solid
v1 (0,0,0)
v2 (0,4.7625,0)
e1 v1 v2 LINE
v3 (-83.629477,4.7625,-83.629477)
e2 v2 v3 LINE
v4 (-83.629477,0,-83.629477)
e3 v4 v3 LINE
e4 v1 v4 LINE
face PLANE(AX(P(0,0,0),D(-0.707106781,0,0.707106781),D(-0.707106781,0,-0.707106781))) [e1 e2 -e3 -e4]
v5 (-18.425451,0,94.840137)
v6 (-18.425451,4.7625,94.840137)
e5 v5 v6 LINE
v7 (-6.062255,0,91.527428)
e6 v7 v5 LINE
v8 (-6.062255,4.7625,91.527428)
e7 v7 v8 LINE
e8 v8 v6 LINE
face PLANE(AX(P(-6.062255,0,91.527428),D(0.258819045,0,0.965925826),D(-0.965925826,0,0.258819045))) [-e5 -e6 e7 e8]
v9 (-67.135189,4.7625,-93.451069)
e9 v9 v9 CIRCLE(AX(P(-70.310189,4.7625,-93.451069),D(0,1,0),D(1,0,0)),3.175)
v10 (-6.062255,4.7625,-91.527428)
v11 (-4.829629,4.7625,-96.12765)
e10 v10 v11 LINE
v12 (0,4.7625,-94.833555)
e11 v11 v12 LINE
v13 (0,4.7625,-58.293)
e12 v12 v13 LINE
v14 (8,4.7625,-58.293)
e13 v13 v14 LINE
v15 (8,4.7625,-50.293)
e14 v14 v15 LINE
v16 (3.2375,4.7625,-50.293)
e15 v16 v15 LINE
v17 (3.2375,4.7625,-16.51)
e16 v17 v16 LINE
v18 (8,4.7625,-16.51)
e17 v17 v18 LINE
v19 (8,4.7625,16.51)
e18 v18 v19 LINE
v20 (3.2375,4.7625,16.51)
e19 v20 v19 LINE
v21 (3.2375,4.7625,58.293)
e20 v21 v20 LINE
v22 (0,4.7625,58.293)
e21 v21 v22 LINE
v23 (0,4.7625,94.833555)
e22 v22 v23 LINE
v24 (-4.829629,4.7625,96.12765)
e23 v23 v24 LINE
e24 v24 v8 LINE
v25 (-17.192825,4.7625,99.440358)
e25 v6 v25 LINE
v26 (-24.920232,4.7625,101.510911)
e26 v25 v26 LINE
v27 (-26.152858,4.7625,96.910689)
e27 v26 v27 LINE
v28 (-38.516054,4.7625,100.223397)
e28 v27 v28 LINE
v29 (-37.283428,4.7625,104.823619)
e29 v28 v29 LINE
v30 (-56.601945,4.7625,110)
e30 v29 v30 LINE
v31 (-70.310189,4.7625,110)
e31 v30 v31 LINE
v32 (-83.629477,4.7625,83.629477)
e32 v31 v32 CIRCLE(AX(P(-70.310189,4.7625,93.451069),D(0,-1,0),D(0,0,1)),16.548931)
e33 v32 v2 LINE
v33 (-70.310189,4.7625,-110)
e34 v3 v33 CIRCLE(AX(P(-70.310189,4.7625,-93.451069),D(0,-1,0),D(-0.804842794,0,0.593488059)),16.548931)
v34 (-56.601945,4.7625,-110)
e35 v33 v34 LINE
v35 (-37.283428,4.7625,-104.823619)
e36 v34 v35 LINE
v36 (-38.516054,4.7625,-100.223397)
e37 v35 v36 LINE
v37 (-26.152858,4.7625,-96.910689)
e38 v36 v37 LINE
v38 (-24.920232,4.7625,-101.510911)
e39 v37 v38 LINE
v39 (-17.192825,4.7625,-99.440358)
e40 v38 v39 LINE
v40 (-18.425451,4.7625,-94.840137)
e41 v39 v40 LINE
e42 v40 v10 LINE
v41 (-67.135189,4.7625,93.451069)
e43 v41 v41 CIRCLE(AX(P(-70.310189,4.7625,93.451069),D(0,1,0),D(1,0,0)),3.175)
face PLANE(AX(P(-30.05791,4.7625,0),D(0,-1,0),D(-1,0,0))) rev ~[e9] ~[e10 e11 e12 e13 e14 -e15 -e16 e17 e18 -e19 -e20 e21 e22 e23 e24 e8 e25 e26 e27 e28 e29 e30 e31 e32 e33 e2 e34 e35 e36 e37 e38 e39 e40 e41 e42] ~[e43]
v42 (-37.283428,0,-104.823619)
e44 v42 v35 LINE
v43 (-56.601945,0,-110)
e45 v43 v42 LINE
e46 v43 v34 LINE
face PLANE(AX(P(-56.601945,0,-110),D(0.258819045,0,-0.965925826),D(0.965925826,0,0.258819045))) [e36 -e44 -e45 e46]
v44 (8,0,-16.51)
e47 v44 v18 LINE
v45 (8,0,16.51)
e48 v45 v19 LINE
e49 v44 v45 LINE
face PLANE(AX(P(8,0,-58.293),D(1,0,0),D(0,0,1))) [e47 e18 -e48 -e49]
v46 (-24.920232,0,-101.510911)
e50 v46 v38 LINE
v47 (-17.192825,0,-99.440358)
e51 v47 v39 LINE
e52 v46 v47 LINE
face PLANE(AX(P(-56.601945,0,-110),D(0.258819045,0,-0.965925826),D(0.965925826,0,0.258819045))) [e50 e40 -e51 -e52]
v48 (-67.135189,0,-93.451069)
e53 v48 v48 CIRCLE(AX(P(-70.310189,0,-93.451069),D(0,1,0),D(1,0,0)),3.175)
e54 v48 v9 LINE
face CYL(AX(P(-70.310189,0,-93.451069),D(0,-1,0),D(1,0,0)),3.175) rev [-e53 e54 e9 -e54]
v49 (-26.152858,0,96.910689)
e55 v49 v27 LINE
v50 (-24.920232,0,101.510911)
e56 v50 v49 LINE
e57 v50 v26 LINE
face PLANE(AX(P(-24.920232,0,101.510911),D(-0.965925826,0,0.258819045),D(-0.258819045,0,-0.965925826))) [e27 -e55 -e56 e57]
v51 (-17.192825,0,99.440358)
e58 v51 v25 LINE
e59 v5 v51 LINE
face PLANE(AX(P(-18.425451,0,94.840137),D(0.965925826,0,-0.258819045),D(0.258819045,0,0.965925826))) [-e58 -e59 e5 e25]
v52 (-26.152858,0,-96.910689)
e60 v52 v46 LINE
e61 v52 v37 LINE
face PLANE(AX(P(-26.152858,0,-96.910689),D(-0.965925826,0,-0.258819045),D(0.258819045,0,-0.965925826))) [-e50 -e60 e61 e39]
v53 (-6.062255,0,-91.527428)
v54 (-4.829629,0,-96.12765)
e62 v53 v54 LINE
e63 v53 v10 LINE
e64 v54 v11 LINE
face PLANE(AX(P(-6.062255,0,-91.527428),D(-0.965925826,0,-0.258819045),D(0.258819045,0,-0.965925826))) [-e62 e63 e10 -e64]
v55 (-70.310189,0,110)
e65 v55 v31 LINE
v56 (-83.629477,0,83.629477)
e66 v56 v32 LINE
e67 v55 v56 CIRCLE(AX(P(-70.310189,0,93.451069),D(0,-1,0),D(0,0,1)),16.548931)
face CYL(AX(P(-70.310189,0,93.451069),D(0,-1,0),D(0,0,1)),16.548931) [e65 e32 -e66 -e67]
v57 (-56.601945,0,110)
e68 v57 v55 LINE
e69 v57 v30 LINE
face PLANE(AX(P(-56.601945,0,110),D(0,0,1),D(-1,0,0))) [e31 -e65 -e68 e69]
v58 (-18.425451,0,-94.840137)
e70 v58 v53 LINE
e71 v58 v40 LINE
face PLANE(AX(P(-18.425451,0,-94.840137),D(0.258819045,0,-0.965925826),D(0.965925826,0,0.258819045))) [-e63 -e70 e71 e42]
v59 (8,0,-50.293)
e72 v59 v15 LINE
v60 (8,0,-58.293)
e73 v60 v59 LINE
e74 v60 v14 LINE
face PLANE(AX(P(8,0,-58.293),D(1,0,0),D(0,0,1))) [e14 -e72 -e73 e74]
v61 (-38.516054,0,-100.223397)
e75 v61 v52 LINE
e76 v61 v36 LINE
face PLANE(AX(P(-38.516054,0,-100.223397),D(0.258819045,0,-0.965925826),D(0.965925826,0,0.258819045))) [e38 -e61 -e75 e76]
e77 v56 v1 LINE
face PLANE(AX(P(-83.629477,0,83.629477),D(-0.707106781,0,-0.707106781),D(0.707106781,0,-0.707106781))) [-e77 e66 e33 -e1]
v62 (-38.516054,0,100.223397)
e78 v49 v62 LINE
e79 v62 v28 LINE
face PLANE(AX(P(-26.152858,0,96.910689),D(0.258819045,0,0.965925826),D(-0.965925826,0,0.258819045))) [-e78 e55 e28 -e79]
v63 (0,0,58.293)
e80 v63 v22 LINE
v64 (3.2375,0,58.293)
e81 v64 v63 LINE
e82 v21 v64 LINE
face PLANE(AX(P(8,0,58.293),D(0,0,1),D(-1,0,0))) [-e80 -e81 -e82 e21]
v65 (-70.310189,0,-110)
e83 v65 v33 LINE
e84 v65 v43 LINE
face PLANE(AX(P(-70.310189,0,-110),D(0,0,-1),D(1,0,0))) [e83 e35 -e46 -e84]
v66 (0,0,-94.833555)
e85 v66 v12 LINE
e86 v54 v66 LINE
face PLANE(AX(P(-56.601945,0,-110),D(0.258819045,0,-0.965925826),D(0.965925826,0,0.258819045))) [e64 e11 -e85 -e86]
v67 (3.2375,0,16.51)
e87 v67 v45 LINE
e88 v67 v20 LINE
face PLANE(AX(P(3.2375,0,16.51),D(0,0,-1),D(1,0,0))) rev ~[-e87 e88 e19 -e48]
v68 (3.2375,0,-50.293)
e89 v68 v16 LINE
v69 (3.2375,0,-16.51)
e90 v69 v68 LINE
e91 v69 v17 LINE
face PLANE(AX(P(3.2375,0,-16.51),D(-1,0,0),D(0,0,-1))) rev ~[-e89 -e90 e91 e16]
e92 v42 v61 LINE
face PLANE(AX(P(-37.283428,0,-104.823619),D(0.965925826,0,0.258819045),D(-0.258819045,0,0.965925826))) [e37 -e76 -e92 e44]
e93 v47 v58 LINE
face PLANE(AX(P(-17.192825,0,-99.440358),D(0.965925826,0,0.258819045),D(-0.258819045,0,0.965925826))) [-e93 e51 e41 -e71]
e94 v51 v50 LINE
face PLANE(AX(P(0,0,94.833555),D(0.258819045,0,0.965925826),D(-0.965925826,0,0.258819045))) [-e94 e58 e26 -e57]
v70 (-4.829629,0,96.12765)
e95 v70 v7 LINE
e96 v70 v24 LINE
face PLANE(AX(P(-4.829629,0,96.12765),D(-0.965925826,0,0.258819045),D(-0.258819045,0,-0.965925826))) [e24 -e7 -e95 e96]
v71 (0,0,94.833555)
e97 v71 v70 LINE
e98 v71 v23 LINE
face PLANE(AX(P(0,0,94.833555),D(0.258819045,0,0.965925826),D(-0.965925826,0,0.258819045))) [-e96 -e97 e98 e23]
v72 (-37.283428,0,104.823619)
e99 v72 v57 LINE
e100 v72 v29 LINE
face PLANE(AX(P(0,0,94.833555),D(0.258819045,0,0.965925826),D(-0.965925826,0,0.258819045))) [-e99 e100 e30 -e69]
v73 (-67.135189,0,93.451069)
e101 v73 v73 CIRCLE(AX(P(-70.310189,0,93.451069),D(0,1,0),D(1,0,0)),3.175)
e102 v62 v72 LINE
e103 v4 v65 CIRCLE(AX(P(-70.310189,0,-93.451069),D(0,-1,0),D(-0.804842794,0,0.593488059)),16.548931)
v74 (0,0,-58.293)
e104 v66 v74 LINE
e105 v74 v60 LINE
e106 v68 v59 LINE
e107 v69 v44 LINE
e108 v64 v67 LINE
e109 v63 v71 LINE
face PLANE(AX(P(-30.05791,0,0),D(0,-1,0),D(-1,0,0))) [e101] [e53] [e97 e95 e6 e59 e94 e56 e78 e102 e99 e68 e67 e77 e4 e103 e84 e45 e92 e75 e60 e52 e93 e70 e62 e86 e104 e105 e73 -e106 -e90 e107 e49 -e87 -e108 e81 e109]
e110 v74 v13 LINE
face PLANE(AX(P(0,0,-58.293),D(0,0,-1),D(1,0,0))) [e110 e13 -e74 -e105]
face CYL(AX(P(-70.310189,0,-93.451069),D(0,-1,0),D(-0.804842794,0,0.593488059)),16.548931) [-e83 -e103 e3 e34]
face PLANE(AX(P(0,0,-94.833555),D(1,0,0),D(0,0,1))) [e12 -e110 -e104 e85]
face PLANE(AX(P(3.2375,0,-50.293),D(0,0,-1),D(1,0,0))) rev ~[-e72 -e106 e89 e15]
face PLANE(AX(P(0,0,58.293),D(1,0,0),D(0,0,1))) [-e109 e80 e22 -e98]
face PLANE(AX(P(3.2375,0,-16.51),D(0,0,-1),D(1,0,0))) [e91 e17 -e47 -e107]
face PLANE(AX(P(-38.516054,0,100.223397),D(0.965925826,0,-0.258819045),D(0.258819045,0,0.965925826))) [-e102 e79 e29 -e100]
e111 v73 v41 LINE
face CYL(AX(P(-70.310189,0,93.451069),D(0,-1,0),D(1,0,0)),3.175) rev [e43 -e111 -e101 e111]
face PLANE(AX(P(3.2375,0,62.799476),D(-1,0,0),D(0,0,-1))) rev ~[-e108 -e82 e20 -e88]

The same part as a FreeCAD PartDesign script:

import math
import FreeCAD as App
import Part
import Sketcher
Q = App.Units.Quantity


def add_polygon(sketch, points):
    """Adds a closed chain of lines whose ends are joined by coincident constraints."""
    first, n = sketch.GeometryCount, len(points)
    for a, b in zip(points, points[1:] + points[:1]):
        sketch.addGeometry(Part.LineSegment(App.Vector(*a, 0), App.Vector(*b, 0)), False)
    for i in range(n):
        sketch.addConstraint(Sketcher.Constraint("Coincident", first + i, 2, first + (i + 1) % n, 1))

doc = App.newDocument("Part")
body = doc.addObject("PartDesign::Body", "Body")

# Sketch on XZ plane
sketch1 = doc.addObject("Sketcher::SketchObject", "Sketch")
body.addObject(sketch1)
sketch1.AttachmentSupport = (doc.XZ_Plane, [""])
sketch1.MapMode = "FlatFace"
sketch1.addGeometry([
    Part.LineSegment(App.Vector(-83.6, -83.6, 0), App.Vector(0, 0, 0)),  # 0
    Part.LineSegment(App.Vector(0, 0, 0), App.Vector(-83.6, 83.6, 0)),  # 1
    Part.ArcOfCircle(Part.Circle(App.Vector(-70.3, 93.5, 0), App.Vector(0, 0, 1), 16.5), math.radians(90), math.radians(216)),  # 2
    Part.LineSegment(App.Vector(-70.3, 110, 0), App.Vector(-56.6, 110, 0)),  # 3
    Part.LineSegment(App.Vector(-56.6, 110, 0), App.Vector(0, 94.8, 0)),  # 4
    Part.LineSegment(App.Vector(0, 94.8, 0), App.Vector(0, 58.3, 0)),  # 5
    Part.LineSegment(App.Vector(0, 58.3, 0), App.Vector(8, 58.3, 0)),  # 6
    Part.LineSegment(App.Vector(8, 58.3, 0), App.Vector(8, -58.3, 0)),  # 7
    Part.LineSegment(App.Vector(8, -58.3, 0), App.Vector(0, -58.3, 0)),  # 8
    Part.LineSegment(App.Vector(0, -58.3, 0), App.Vector(0, -94.8, 0)),  # 9
    Part.LineSegment(App.Vector(0, -94.8, 0), App.Vector(-56.6, -110, 0)),  # 10
    Part.LineSegment(App.Vector(-56.6, -110, 0), App.Vector(-70.3, -110, 0)),  # 11
    Part.ArcOfCircle(Part.Circle(App.Vector(-70.3, -93.5, 0), App.Vector(0, 0, 1), 16.5), math.radians(144), math.radians(270)),  # 12
    Part.Circle(App.Vector(-70.3, 93.5, 0), App.Vector(0, 0, 1), 3.2),  # 13
    Part.Circle(App.Vector(-70.3, -93.5, 0), App.Vector(0, 0, 1), 3.2),  # 14
], False)
sketch1.addConstraint([
    Sketcher.Constraint("Coincident", 0, 2, 1, 1),
    Sketcher.Constraint("Coincident", 1, 2, 2, 2),
    Sketcher.Constraint("Tangent", 2, 1, 3, 1),
    Sketcher.Constraint("Coincident", 3, 2, 4, 1),
    Sketcher.Constraint("Coincident", 4, 2, 5, 1),
    Sketcher.Constraint("Coincident", 5, 2, 6, 1),
    Sketcher.Constraint("Coincident", 6, 2, 7, 1),
    Sketcher.Constraint("Coincident", 7, 2, 8, 1),
    Sketcher.Constraint("Coincident", 8, 2, 9, 1),
    Sketcher.Constraint("Coincident", 9, 2, 10, 1),
    Sketcher.Constraint("Coincident", 10, 2, 11, 1),
    Sketcher.Constraint("Tangent", 11, 2, 12, 2),
    Sketcher.Constraint("Coincident", 12, 1, 0, 1),
    Sketcher.Constraint("Horizontal", 3),
    Sketcher.Constraint("Vertical", 5),
    Sketcher.Constraint("Horizontal", 6),
    Sketcher.Constraint("Vertical", 7),
    Sketcher.Constraint("Horizontal", 8),
    Sketcher.Constraint("Vertical", 9),
    Sketcher.Constraint("Horizontal", 11),
    Sketcher.Constraint("Coincident", 0, 2, -1, 1),
    Sketcher.Constraint("Coincident", 13, 3, 2, 3),
    Sketcher.Constraint("Coincident", 14, 3, 12, 3),
    Sketcher.Constraint("Equal", 2, 12),
    Sketcher.Constraint("Equal", 13, 14),
    Sketcher.Constraint("Symmetric", 5, 2, 8, 2, -1, 1),
    Sketcher.Constraint("Symmetric", 2, 3, 12, 3, -1),
    Sketcher.Constraint("Symmetric", 4, 2, 9, 2, -1),
    Sketcher.Constraint("Perpendicular", 0, 1),
    Sketcher.Constraint("Vertical", 3, 2, 10, 2),
    Sketcher.Constraint("Vertical", 1, 2, 12, 1),
    Sketcher.Constraint("Diameter", 13, Q("0.25 in")),
    Sketcher.Constraint("Angle", 4, Q("-15 deg")),
    Sketcher.Constraint("DistanceY", 7, 2, 7, 1, Q("4.59 in")),
    Sketcher.Constraint("Radius", 2, Q("16.548931 mm")),
    Sketcher.Constraint("DistanceX", 6, 1, 6, 2, Q("8 mm")),
    Sketcher.Constraint("DistanceY", -1, 1, 2, 1, Q("110 mm")),
    Sketcher.Constraint("Distance", 0, Q("118.26994 mm")),
    Sketcher.Constraint("DistanceX", 3, 1, 3, 2, Q("13.708244 mm")),
])
pad1 = doc.addObject("PartDesign::Pad", "Pad")
body.addObject(pad1)
pad1.Profile = sketch1
pad1.Length = Q("0.1875 in")
pad1.Reversed = True

# Sketch on XZ plane
sketch2 = doc.addObject("Sketcher::SketchObject", "Sketch001")
body.addObject(sketch2)
sketch2.AttachmentSupport = (doc.XZ_Plane, [""])
sketch2.MapMode = "FlatFace"
add_polygon(sketch2, [(-4.8, -96.1), (-17.2, -99.4), (-18.4, -94.8), (-6.1, -91.5)])  # lines 0-3
add_polygon(sketch2, [(-24.9, -101.5), (-37.3, -104.8), (-38.5, -100.2), (-26.2, -96.9)])  # lines 4-7
add_polygon(sketch2, [(3.2, -50.3), (3.2, -16.5), (8, -16.5), (8, -50.3)])  # lines 8-11
add_polygon(sketch2, [(-26.2, 96.9), (-38.5, 100.2), (-37.3, 104.8), (-24.9, 101.5)])  # lines 12-15
add_polygon(sketch2, [(-6.1, 91.5), (-18.4, 94.8), (-17.2, 99.4), (-4.8, 96.1)])  # lines 16-19
add_polygon(sketch2, [(3.2, 16.5), (3.2, 62.8), (8, 62.8), (8, 16.5)])  # lines 20-23
sketch2.addConstraint([
    Sketcher.Constraint("Vertical", 8),
    Sketcher.Constraint("Horizontal", 9),
    Sketcher.Constraint("Vertical", 10),
    Sketcher.Constraint("Horizontal", 11),
    Sketcher.Constraint("Vertical", 20),
    Sketcher.Constraint("Horizontal", 21),
    Sketcher.Constraint("Vertical", 22),
    Sketcher.Constraint("Horizontal", 23),
    Sketcher.Constraint("Symmetric", 5, 2, 12, 2, -1),
    Sketcher.Constraint("Symmetric", 4, 2, 13, 2, -1),
    Sketcher.Constraint("Symmetric", 7, 2, 14, 2, -1),
    Sketcher.Constraint("Symmetric", 6, 2, 15, 2, -1),
    Sketcher.Constraint("Symmetric", 1, 2, 16, 2, -1),
    Sketcher.Constraint("Symmetric", 0, 2, 17, 2, -1),
    Sketcher.Constraint("Symmetric", 3, 2, 18, 2, -1),
    Sketcher.Constraint("Symmetric", 2, 2, 19, 2, -1),
    Sketcher.Constraint("Symmetric", 9, 2, 22, 2, -1),
    Sketcher.Constraint("Perpendicular", 0, 1),
    Sketcher.Constraint("Perpendicular", 1, 2),
    Sketcher.Constraint("Perpendicular", 2, 3),
    Sketcher.Constraint("Perpendicular", 3, 4),
    Sketcher.Constraint("Perpendicular", 4, 5),
    Sketcher.Constraint("Perpendicular", 5, 6),
    Sketcher.Constraint("Perpendicular", 6, 7),
    Sketcher.Constraint("Vertical", 11, 2, 20, 2),
    Sketcher.Constraint("Equal", 2, 4),
    Sketcher.Constraint("Equal", 3, 5),
    Sketcher.Constraint("Angle", 0, Q("-165 deg")),
    Sketcher.Constraint("DistanceY", 9, 2, 22, 2, Q("1.3 in")),
    Sketcher.Constraint("DistanceX", 9, 1, 9, 2, Q("0.1875 in")),
    Sketcher.Constraint("Distance", 1, Q("0.1875 in")),
    Sketcher.Constraint("DistanceY", 8, 1, 8, 2, Q("33.783 mm")),
    Sketcher.Constraint("DistanceX", 7, 2, 1, 2, Q("0.2557 in")),
    Sketcher.Constraint("DistanceX", -1, 1, 8, 2, Q("3.2375 mm")),
    Sketcher.Constraint("DistanceX", 4, 2, 3, 2, Q("32.453799 mm")),
    Sketcher.Constraint("DistanceY", 20, 1, 20, 2, Q("46.289476 mm")),
    Sketcher.Constraint("DistanceY", 0, 2, -1, 1, Q("99.440358 mm")),
    Sketcher.Constraint("DistanceX", 1, 2, -1, 1, Q("18.425451 mm")),
    Sketcher.Constraint("DistanceY", 4, 2, -1, 1, Q("104.823619 mm")),
])
pocket1 = doc.addObject("PartDesign::Pocket", "Pocket")
body.addObject(pocket1)
pocket1.Profile = sketch2
pocket1.Length = 10

doc.recompute()
